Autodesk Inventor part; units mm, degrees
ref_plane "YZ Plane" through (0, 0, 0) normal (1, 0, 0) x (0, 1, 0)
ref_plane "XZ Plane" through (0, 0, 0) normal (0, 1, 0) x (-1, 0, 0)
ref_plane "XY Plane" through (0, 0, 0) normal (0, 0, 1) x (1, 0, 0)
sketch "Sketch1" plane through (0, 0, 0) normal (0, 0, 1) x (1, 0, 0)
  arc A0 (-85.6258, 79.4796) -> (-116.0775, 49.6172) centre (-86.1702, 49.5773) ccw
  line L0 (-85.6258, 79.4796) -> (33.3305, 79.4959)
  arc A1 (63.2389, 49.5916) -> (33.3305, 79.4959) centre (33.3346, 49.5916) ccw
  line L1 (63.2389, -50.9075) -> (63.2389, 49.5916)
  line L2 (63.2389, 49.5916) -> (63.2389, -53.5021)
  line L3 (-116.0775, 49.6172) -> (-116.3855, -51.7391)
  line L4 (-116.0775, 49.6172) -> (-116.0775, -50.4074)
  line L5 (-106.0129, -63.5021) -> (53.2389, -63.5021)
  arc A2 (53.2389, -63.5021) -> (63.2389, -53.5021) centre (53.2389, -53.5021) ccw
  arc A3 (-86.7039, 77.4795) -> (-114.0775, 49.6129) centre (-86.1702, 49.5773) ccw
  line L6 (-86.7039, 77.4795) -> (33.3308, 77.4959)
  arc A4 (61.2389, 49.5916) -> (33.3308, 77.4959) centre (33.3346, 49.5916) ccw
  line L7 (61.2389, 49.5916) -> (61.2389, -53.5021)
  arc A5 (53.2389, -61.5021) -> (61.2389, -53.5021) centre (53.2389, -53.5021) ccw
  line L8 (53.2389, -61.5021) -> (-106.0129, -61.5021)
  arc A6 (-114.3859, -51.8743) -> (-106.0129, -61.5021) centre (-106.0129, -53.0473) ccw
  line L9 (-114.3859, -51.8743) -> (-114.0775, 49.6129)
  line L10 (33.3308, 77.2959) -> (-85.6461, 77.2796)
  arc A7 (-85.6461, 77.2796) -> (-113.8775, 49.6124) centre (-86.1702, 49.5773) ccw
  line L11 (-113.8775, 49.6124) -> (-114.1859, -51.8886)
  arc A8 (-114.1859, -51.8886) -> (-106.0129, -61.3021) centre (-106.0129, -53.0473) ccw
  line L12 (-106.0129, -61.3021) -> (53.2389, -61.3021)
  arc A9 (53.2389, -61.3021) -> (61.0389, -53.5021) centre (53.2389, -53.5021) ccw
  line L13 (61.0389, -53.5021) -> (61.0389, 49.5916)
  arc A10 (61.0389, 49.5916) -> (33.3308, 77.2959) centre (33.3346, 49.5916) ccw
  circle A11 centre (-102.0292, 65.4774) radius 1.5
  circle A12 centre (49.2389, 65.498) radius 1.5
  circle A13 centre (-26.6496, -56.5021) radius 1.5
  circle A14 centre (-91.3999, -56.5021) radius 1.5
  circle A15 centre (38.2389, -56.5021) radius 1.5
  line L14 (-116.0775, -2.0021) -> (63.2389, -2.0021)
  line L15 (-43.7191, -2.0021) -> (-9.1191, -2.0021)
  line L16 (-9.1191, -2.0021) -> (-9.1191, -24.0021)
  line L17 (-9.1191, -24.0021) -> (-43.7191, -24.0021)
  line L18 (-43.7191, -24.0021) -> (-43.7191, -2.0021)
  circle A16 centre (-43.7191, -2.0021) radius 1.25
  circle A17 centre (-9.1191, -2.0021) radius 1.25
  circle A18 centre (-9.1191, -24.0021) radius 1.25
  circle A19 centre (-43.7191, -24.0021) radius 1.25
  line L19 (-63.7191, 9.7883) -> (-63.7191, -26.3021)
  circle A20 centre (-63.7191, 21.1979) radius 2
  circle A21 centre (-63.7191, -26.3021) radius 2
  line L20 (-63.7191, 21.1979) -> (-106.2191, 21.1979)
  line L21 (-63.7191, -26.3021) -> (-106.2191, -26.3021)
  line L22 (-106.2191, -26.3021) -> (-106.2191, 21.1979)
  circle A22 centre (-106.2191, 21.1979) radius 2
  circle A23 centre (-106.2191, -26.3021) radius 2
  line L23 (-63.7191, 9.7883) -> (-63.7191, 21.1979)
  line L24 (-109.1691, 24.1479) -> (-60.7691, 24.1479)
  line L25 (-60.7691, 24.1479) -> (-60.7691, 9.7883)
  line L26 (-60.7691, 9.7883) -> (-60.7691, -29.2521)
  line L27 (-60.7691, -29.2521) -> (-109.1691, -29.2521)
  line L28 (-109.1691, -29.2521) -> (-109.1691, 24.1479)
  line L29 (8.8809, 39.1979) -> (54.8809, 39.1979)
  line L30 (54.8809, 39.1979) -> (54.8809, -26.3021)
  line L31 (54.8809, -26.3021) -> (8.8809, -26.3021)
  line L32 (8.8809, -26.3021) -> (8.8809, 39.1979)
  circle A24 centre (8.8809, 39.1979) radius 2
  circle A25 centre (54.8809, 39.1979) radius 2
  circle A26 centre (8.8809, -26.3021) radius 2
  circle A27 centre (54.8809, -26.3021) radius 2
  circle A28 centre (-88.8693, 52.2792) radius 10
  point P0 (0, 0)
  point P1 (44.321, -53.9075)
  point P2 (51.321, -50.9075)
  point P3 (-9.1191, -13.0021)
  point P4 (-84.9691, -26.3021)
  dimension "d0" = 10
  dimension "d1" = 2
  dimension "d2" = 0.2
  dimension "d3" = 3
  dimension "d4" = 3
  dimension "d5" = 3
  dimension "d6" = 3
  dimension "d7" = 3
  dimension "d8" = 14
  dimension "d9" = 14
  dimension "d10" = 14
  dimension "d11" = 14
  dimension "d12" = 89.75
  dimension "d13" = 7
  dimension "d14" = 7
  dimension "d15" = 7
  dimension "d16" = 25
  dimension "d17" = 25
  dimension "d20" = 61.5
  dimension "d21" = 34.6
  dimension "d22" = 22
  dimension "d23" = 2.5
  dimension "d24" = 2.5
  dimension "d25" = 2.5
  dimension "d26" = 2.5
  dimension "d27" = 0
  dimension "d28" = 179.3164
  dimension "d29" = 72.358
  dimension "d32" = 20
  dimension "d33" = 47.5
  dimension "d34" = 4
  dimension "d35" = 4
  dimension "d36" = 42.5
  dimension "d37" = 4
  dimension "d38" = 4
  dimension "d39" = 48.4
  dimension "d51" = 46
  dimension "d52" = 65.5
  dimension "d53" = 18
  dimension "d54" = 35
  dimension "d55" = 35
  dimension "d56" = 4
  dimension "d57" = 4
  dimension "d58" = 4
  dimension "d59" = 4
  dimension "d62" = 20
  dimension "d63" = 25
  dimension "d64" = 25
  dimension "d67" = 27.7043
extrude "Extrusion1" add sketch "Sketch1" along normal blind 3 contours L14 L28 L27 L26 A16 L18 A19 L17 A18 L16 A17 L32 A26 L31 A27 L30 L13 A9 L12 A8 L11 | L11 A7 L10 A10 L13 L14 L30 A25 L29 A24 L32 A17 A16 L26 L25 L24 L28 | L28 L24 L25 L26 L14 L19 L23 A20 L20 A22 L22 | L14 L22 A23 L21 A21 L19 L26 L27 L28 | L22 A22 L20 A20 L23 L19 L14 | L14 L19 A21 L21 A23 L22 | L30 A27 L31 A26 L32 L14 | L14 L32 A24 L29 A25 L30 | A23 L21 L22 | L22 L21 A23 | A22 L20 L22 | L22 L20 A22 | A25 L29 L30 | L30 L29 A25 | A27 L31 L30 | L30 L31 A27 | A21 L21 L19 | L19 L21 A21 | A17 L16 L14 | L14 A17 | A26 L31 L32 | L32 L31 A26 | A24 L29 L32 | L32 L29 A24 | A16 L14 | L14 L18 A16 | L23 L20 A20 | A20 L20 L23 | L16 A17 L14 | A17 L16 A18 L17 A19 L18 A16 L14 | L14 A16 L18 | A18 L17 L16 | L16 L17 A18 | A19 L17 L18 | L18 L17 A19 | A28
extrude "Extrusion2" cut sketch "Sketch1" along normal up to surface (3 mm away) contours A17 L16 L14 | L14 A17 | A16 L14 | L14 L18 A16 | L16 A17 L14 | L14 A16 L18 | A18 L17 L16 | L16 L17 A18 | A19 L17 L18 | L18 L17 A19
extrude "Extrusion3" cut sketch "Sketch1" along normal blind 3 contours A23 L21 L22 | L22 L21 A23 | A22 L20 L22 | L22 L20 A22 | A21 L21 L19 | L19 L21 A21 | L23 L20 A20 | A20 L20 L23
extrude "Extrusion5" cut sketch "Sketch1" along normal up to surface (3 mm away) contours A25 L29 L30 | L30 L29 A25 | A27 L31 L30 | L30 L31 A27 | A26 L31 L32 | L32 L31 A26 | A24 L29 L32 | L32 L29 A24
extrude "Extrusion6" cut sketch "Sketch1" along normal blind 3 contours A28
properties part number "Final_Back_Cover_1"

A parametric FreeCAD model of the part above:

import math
import FreeCAD as App
import Part
import Sketcher

V = App.Vector
Q = App.Units.Quantity

doc = App.newDocument("Part")
body = doc.addObject("PartDesign::Body", "Body")

sketch1 = body.newObject("Sketcher::SketchObject", "Sketch")
sketch1.AttachmentSupport = (doc.getObject("XY_Plane"), [""])
sketch1.MapMode = "FlatFace"
sketch1.addGeometry([
    Part.LineSegment(V(61, -53.5, 0), V(61, 49.6, 0)),
    Part.ArcOfCircle(Part.Circle(V(33.3, 49.6, 0), V(0, 0, 1), 27.7), math.radians(0), math.radians(90)),
    Part.LineSegment(V(33.3, 77.3, 0), V(-85.6, 77.3, 0)),
    Part.ArcOfCircle(Part.Circle(V(-86.2, 49.6, 0), V(0, 0, 1), 27.7), math.radians(89), math.radians(180)),
    Part.LineSegment(V(-113.9, 49.6, 0), V(-114.2, -51.9, 0)),
    Part.ArcOfCircle(Part.Circle(V(-106, -53, 0), V(0, 0, 1), 8.3), math.radians(172), math.radians(270)),
    Part.LineSegment(V(-106, -61.3, 0), V(53.2, -61.3, 0)),
    Part.ArcOfCircle(Part.Circle(V(53.2, -53.5, 0), V(0, 0, 1), 7.8), math.radians(-90), math.radians(0)),
    Part.Circle(V(-91.4, -56.5, 0), V(0, 0, 1), 1.5),
    Part.Circle(V(-26.6, -56.5, 0), V(0, 0, 1), 1.5),
    Part.Circle(V(38.2, -56.5, 0), V(0, 0, 1), 1.5),
    Part.Circle(V(49.2, 65.5, 0), V(0, 0, 1), 1.5),
    Part.Circle(V(-102, 65.5, 0), V(0, 0, 1), 1.5),
], False)
sketch1.addConstraint([
    Sketcher.Constraint("Tangent", 0, 2, 1, 1),
    Sketcher.Constraint("Tangent", 1, 2, 2, 1),
    Sketcher.Constraint("Coincident", 2, 2, 3, 1),
    Sketcher.Constraint("Coincident", 3, 2, 4, 1),
    Sketcher.Constraint("Coincident", 4, 2, 5, 1),
    Sketcher.Constraint("Tangent", 5, 2, 6, 1),
    Sketcher.Constraint("Tangent", 6, 2, 7, 1),
    Sketcher.Constraint("Tangent", 7, 2, 0, 1),
    Sketcher.Constraint("Vertical", 0),
    Sketcher.Constraint("Horizontal", 6),
    Sketcher.Constraint("Equal", 8, 9),
    Sketcher.Constraint("Equal", 9, 10),
    Sketcher.Constraint("Equal", 10, 11),
    Sketcher.Constraint("Equal", 11, 12),
    Sketcher.Constraint("Horizontal", 8, 3, 9, 3),
    Sketcher.Constraint("Horizontal", 9, 3, 10, 3),
    Sketcher.Constraint("Diameter", 8, Q("3 mm")),
    Sketcher.Constraint("DistanceY", 8, 3, 7, 3, Q("3 mm")),
    Sketcher.Constraint("DistanceX", 11, 3, 7, 3, Q("4 mm")),
    Sketcher.Constraint("Radius", 1, Q("27.7043 mm")),
    Sketcher.Constraint("Radius", 7, Q("7.8 mm")),
    Sketcher.Constraint("DistanceX", 10, 3, 7, 3, Q("15 mm")),
    Sketcher.Constraint("DistanceY", 7, 3, 11, 3, Q("119 mm")),
    Sketcher.Constraint("DistanceX", 8, 3, -1, 1, Q("91.4 mm")),
    Sketcher.Constraint("Radius", 3, Q("27.7073 mm")),
    Sketcher.Constraint("Radius", 5, Q("8.2547 mm")),
    Sketcher.Constraint("DistanceY", 3, 3, 12, 3, Q("15.9 mm")),
    Sketcher.Constraint("Distance", 2, Q("118.977 mm")),
    Sketcher.Constraint("DistanceX", 6, 1, 6, 2, Q("159.2518 mm")),
    Sketcher.Constraint("DistanceY", 0, 1, 0, 2, Q("103.0937 mm")),
    Sketcher.Constraint("DistanceX", 5, 3, -1, 1, Q("106.013 mm")),
    Sketcher.Constraint("DistanceY", 7, 3, -1, 1, Q("53.502 mm")),
    Sketcher.Constraint("DistanceX", 2, 2, -1, 1, Q("85.646 mm")),
    Sketcher.Constraint("DistanceX", 4, 2, -1, 1, Q("114.186 mm")),
    Sketcher.Constraint("DistanceX", 3, 3, 7, 3, Q("139.409 mm")),
    Sketcher.Constraint("DistanceX", 12, 3, 3, 3, Q("15.859 mm")),
    Sketcher.Constraint("DistanceY", 3, 2, 12, 3, Q("15.865 mm")),
    Sketcher.Constraint("DistanceX", 9, 3, -1, 1, Q("26.6496 mm")),
])
pad1 = body.newObject("PartDesign::Pad", "Pad")
pad1.Profile = sketch1
pad1.Length = 3

sketch2 = body.newObject("Sketcher::SketchObject", "Sketch001")
sketch2.AttachmentSupport = (doc.getObject("XY_Plane"), [""])
sketch2.MapMode = "FlatFace"
sketch2.addGeometry([
    Part.Circle(V(-9.1, -2, 0), V(0, 0, 1), 1.2),
    Part.Circle(V(-43.7, -2, 0), V(0, 0, 1), 1.2),
    Part.Circle(V(-9.1, -24, 0), V(0, 0, 1), 1.2),
    Part.Circle(V(-43.7, -24, 0), V(0, 0, 1), 1.2),
], False)
sketch2.addConstraint([
    Sketcher.Constraint("Equal", 0, 1),
    Sketcher.Constraint("Equal", 1, 2),
    Sketcher.Constraint("Equal", 2, 3),
    Sketcher.Constraint("Horizontal", 0, 3, 1, 3),
    Sketcher.Constraint("Horizontal", 2, 3, 3, 3),
    Sketcher.Constraint("Vertical", 0, 3, 2, 3),
    Sketcher.Constraint("Vertical", 1, 3, 3, 3),
    Sketcher.Constraint("Diameter", 0, Q("2.5 mm")),
    Sketcher.Constraint("DistanceY", 2, 3, 0, 3, Q("22 mm")),
    Sketcher.Constraint("DistanceX", 1, 3, 0, 3, Q("34.6 mm")),
    Sketcher.Constraint("DistanceX", 0, 3, -1, 1, Q("9.119 mm")),
    Sketcher.Constraint("DistanceY", 0, 3, -1, 1, Q("2.002 mm")),
])
pocket1 = body.newObject("PartDesign::Pocket", "Pocket")
pocket1.Profile = sketch2
pocket1.Length = 3
pocket1.Reversed = True

sketch3 = body.newObject("Sketcher::SketchObject", "Sketch002")
sketch3.AttachmentSupport = (doc.getObject("XY_Plane"), [""])
sketch3.MapMode = "FlatFace"
sketch3.addGeometry([
    Part.Circle(V(-106.2, -26.3, 0), V(0, 0, 1), 2),
    Part.Circle(V(-106.2, 21.2, 0), V(0, 0, 1), 2),
    Part.Circle(V(-63.7, -26.3, 0), V(0, 0, 1), 2),
    Part.Circle(V(-63.7, 21.2, 0), V(0, 0, 1), 2),
], False)
sketch3.addConstraint([
    Sketcher.Constraint("Equal", 0, 1),
    Sketcher.Constraint("Equal", 1, 2),
    Sketcher.Constraint("Equal", 2, 3),
    Sketcher.Constraint("Horizontal", 0, 3, 2, 3),
    Sketcher.Constraint("Horizontal", 1, 3, 3, 3),
    Sketcher.Constraint("Vertical", 0, 3, 1, 3),
    Sketcher.Constraint("Vertical", 2, 3, 3, 3),
    Sketcher.Constraint("Diameter", 0, Q("4 mm")),
    Sketcher.Constraint("DistanceY", 0, 3, 1, 3, Q("47.5 mm")),
    Sketcher.Constraint("DistanceX", 0, 3, 2, 3, Q("42.5 mm")),
    Sketcher.Constraint("DistanceX", 0, 3, -1, 1, Q("106.219 mm")),
    Sketcher.Constraint("DistanceY", 0, 3, -1, 1, Q("26.302 mm")),
])
pocket2 = body.newObject("PartDesign::Pocket", "Pocket001")
pocket2.Profile = sketch3
pocket2.Length = 3
pocket2.Reversed = True

sketch4 = body.newObject("Sketcher::SketchObject", "Sketch003")
sketch4.AttachmentSupport = (doc.getObject("XY_Plane"), [""])
sketch4.MapMode = "FlatFace"
sketch4.addGeometry([
    Part.Circle(V(54.9, 39.2, 0), V(0, 0, 1), 2),
    Part.Circle(V(54.9, -26.3, 0), V(0, 0, 1), 2),
    Part.Circle(V(8.9, -26.3, 0), V(0, 0, 1), 2),
    Part.Circle(V(8.9, 39.2, 0), V(0, 0, 1), 2),
], False)
sketch4.addConstraint([
    Sketcher.Constraint("Equal", 0, 1),
    Sketcher.Constraint("Equal", 1, 2),
    Sketcher.Constraint("Equal", 2, 3),
    Sketcher.Constraint("Horizontal", 1, 3, 2, 3),
    Sketcher.Constraint("Horizontal", 0, 3, 3, 3),
    Sketcher.Constraint("Vertical", 0, 3, 1, 3),
    Sketcher.Constraint("Vertical", 2, 3, 3, 3),
    Sketcher.Constraint("Diameter", 0, Q("4 mm")),
    Sketcher.Constraint("DistanceX", 2, 3, 1, 3, Q("46 mm")),
    Sketcher.Constraint("DistanceY", 1, 3, 0, 3, Q("65.5 mm")),
    Sketcher.Constraint("DistanceX", -1, 1, 0, 3, Q("54.881 mm")),
    Sketcher.Constraint("DistanceY", -1, 1, 0, 3, Q("39.198 mm")),
])
pocket3 = body.newObject("PartDesign::Pocket", "Pocket002")
pocket3.Profile = sketch4
pocket3.Length = 3
pocket3.Reversed = True

sketch5 = body.newObject("Sketcher::SketchObject", "Sketch004")
sketch5.AttachmentSupport = (doc.getObject("XY_Plane"), [""])
sketch5.MapMode = "FlatFace"
sketch5.addGeometry(Part.Circle(V(-89, 52, 0), V(0, 0, 1), 10), False)
sketch5.addConstraint([
    Sketcher.Constraint("Diameter", 0, Q("20 mm")),
    Sketcher.Constraint("DistanceX", 0, 3, -1, 1, Q("88.8693 mm")),
    Sketcher.Constraint("DistanceY", -1, 1, 0, 3, Q("52.2792 mm")),
])
pocket4 = body.newObject("PartDesign::Pocket", "Pocket003")
pocket4.Profile = sketch5
pocket4.Length = 3
pocket4.Reversed = True

doc.recompute()
